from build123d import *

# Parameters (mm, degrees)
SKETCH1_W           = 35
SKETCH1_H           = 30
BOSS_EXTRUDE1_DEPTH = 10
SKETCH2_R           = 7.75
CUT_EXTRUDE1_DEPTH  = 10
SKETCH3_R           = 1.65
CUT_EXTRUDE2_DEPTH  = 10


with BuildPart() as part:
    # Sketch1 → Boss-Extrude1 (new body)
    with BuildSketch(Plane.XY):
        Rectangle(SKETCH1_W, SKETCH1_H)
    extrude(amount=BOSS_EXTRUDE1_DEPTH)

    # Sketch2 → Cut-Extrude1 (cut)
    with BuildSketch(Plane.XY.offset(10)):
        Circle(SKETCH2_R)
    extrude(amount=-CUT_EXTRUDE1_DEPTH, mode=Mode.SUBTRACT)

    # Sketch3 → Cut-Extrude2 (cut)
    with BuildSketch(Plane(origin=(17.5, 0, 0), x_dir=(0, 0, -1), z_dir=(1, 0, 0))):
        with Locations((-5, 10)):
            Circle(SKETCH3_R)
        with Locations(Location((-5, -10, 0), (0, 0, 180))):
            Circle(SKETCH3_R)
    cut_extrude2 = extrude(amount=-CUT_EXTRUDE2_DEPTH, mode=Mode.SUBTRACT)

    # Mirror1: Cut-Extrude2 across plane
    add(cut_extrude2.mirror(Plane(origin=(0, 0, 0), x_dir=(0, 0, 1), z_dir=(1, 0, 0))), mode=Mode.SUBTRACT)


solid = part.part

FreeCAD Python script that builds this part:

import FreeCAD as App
import Part
import Sketcher

V = App.Vector


def add_polygon(sketch, points):
    """Adds a closed chain of lines whose ends are joined by coincident constraints."""
    first, n = sketch.GeometryCount, len(points)
    for a, b in zip(points, points[1:] + points[:1]):
        sketch.addGeometry(Part.LineSegment(App.Vector(*a, 0), App.Vector(*b, 0)), False)
    for i in range(n):
        sketch.addConstraint(Sketcher.Constraint("Coincident", first + i, 2, first + (i + 1) % n, 1))

doc = App.newDocument("Part")
body = doc.addObject("PartDesign::Body", "Body")

# Sketch on XY plane
sketch1 = doc.addObject("Sketcher::SketchObject", "Sketch")
body.addObject(sketch1)
sketch1.AttachmentSupport = (doc.XY_Plane, [""])
sketch1.MapMode = "FlatFace"
add_polygon(sketch1, [(-18, 15), (-18, -15), (18, -15), (18, 15)])  # lines 0-3
sketch1.addConstraint(Sketcher.Constraint("Vertical", 0))
sketch1.addConstraint(Sketcher.Constraint("Horizontal", 1))
sketch1.addConstraint(Sketcher.Constraint("Vertical", 2))
sketch1.addConstraint(Sketcher.Constraint("Horizontal", 3))
sketch1.addConstraint(Sketcher.Constraint("Symmetric", 0, 2, 2, 2, -1, 1))
sketch1.addConstraint(Sketcher.Constraint("DistanceX", 1, 1, 1, 2, 35.0))
sketch1.addConstraint(Sketcher.Constraint("DistanceY", 0, 2, 0, 1, 30.0))
pad1 = doc.addObject("PartDesign::Pad", "Pad")
body.addObject(pad1)
pad1.Profile = sketch1
pad1.Length = 10

# Sketch on XY plane
sketch2 = doc.addObject("Sketcher::SketchObject", "Sketch001")
body.addObject(sketch2)
sketch2.AttachmentSupport = (doc.XY_Plane, [""])
sketch2.MapMode = "FlatFace"
sketch2.AttachmentOffset = App.Placement(V(0, 0, 10), App.Rotation())
sketch2.addGeometry(Part.Circle(V(0, 0, 0), V(0, 0, 1), 8), False)
sketch2.addConstraint(Sketcher.Constraint("Coincident", 0, 3, -1, 1))
sketch2.addConstraint(Sketcher.Constraint("Diameter", 0, 15.5))
pocket1 = doc.addObject("PartDesign::Pocket", "Pocket")
body.addObject(pocket1)
pocket1.Profile = sketch2
pocket1.Length = 10

# Sketch on YZ plane
sketch3 = doc.addObject("Sketcher::SketchObject", "Sketch002")
body.addObject(sketch3)
sketch3.AttachmentSupport = (doc.YZ_Plane, [""])
sketch3.MapMode = "FlatFace"
sketch3.AttachmentOffset = App.Placement(V(0, 0, 17.5), App.Rotation())
sketch3.addGeometry(Part.Circle(V(10, 5, 0), V(0, 0, 1), 1.6), False)
sketch3.addGeometry(Part.Circle(V(-10, 5, 0), V(0, 0, 1), 1.6), False)
sketch3.addConstraint(Sketcher.Constraint("Equal", 0, 1))
sketch3.addConstraint(Sketcher.Constraint("Symmetric", 0, 3, 1, 3, -2))
sketch3.addConstraint(Sketcher.Constraint("Diameter", 0, 3.3))
sketch3.addConstraint(Sketcher.Constraint("DistanceX", -1, 1, 0, 3, 10.0))
sketch3.addConstraint(Sketcher.Constraint("DistanceY", -1, 1, 0, 3, 5.0))
pocket2 = doc.addObject("PartDesign::Pocket", "Pocket001")
body.addObject(pocket2)
pocket2.Profile = sketch3
pocket2.Length = 10
doc.recompute()

mirrored = doc.addObject("PartDesign::Mirrored", "Mirrored")
body.addObject(mirrored)
mirrored.Originals = [pocket2]
mirrored.MirrorPlane = (doc.YZ_Plane, [""])
body.Tip = mirrored

doc.recompute()
